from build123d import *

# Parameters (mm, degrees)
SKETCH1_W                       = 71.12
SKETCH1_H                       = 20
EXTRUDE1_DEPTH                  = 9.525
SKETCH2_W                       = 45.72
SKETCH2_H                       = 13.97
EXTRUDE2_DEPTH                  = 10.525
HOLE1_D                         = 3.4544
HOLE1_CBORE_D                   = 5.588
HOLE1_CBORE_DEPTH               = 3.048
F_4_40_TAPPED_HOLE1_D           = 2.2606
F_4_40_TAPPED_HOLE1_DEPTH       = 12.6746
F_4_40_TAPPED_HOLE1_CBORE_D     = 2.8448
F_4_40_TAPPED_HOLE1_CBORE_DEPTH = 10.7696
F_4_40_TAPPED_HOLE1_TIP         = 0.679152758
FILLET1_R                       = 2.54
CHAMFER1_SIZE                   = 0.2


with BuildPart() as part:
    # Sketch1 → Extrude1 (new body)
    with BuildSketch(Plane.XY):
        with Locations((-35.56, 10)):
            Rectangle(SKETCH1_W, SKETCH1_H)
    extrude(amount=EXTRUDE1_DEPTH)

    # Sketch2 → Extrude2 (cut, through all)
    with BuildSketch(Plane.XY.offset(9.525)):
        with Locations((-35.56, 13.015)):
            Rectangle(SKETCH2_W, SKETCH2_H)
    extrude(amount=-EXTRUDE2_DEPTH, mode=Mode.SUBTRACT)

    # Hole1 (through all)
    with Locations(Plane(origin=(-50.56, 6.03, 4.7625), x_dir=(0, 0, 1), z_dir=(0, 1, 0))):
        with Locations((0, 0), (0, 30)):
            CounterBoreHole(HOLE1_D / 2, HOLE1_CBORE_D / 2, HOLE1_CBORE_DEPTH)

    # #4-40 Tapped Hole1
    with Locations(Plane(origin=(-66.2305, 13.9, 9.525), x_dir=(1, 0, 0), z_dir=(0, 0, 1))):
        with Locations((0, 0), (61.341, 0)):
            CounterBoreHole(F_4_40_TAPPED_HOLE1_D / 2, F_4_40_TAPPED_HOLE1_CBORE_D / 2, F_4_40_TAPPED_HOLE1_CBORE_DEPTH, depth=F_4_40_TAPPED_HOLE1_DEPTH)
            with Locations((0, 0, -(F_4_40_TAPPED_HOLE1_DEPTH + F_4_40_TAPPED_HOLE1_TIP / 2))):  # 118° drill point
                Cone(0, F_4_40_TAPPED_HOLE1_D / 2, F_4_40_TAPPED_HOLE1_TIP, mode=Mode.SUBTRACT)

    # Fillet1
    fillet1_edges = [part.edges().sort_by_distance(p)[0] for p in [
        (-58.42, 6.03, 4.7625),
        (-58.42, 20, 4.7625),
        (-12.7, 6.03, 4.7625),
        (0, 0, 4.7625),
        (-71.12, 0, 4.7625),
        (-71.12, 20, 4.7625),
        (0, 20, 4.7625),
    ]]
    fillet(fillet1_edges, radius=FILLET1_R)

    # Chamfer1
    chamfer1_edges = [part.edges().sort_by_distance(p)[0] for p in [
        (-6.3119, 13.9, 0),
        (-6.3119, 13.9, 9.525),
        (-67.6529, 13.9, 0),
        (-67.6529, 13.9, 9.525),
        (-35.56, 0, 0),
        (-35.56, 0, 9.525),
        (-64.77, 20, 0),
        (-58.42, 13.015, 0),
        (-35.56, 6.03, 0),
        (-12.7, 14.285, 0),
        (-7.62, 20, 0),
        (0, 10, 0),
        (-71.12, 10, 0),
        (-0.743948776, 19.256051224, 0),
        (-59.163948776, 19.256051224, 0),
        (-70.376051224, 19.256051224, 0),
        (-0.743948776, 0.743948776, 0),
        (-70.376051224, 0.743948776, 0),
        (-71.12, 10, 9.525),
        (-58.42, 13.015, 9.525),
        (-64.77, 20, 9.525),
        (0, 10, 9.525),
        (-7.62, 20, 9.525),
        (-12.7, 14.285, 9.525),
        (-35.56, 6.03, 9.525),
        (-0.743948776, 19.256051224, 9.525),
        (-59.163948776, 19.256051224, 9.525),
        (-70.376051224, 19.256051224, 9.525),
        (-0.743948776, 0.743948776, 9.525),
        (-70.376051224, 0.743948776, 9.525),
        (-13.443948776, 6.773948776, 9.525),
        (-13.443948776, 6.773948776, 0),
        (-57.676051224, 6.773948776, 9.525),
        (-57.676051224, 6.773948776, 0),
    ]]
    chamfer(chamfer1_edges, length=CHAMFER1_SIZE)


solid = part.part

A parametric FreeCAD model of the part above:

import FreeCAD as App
import Part
import Sketcher
from FreeCAD import Vector
Q = App.Units.Quantity


def edges_at(feature, points):
    """Names of the edges that pass closest to the given points."""
    edges = feature.Shape.Edges
    near = lambda p: min(range(len(edges)), key=lambda i: edges[i].distToShape(Part.Vertex(*p))[0])
    return sorted({f"Edge{near(p) + 1}" for p in points})


def add_polygon(sketch, points):
    """Adds a closed chain of lines whose ends are joined by coincident constraints."""
    first, n = sketch.GeometryCount, len(points)
    for a, b in zip(points, points[1:] + points[:1]):
        sketch.addGeometry(Part.LineSegment(App.Vector(*a, 0), App.Vector(*b, 0)), False)
    for i in range(n):
        sketch.addConstraint(Sketcher.Constraint("Coincident", first + i, 2, first + (i + 1) % n, 1))

doc = App.newDocument("Part")
params = doc.addObject("Spreadsheet::Sheet", "Params")
for row, (alias, value) in enumerate([
    ("sketch1_width", "2.8 in"),
    ("pad1_length", "0.375 in"),
    ("sketch2_width", "1.8 in"),
    ("sketch2_height", "0.55 in"),
    ("sketch3_diameter", "0.136 in"),
    ("hole_diameter", "0.136 in"),
    ("hole_cbore_diameter", "0.22 in"),
    ("hole_cbore_depth", "0.12 in"),
    ("sketch4_diameter", "0.089 in"),
    ("hole2_diameter", "0.089 in"),
    ("hole2_depth", "0.499 in"),
    ("hole2_cbore_diameter", "0.112 in"),
    ("hole2_cbore_depth", "0.424 in"),
    ("fillet_radius", "0.1 in"),
    ("chamfer_size", "0.2 mm"),
], start=1):
    params.set(f"A{row}", alias)
    params.set(f"B{row}", "=" + value)
    params.setAlias(f"B{row}", alias)

body = doc.addObject("PartDesign::Body", "Body")

sketch1 = body.newObject("Sketcher::SketchObject", "Sketch")
sketch1.AttachmentSupport = (doc.getObject("XY_Plane"), [""])
sketch1.MapMode = "FlatFace"
add_polygon(sketch1, [(-71.12, 20), (-71.12, 0), (0, 0), (0, 20)])
sketch1.addConstraint([
    Sketcher.Constraint("Vertical", 0),
    Sketcher.Constraint("Horizontal", 1),
    Sketcher.Constraint("Vertical", 2),
    Sketcher.Constraint("Horizontal", 3),
    Sketcher.Constraint("Coincident", 1, 2, -1, 1),
    Sketcher.Constraint("DistanceX", 1, 1, 1, 2, Q("2.8 in")),
    Sketcher.Constraint("DistanceY", 0, 2, 0, 1, Q("20 mm")),
])
sketch1.setExpression("Constraints[9]", "Params.sketch1_width")
pad1 = body.newObject("PartDesign::Pad", "Pad")
pad1.Profile = sketch1
pad1.setExpression("Length", "Params.pad1_length")

sketch2 = body.newObject("Sketcher::SketchObject", "Sketch001")
sketch2.AttachmentSupport = (doc.getObject("XY_Plane"), [""])
sketch2.MapMode = "FlatFace"
sketch2.AttachmentOffset = App.Placement(Vector(0, 0, 0.375 * 25.4), App.Rotation())
add_polygon(sketch2, [(-58.42, 20), (-58.42, 6.03), (-12.7, 6.03), (-12.7, 20)])
sketch2.addConstraint([
    Sketcher.Constraint("Vertical", 0),
    Sketcher.Constraint("Horizontal", 1),
    Sketcher.Constraint("Vertical", 2),
    Sketcher.Constraint("Horizontal", 3),
    Sketcher.Constraint("DistanceX", 1, 1, 1, 2, Q("1.8 in")),
    Sketcher.Constraint("DistanceY", 0, 2, 0, 1, Q("0.55 in")),
    Sketcher.Constraint("DistanceX", 0, 2, -1, 1, Q("2.3 in")),
    Sketcher.Constraint("DistanceY", -1, 1, 0, 2, Q("6.03 mm")),
])
sketch2.setExpression("Constraints[8]", "Params.sketch2_width")
sketch2.setExpression("Constraints[9]", "Params.sketch2_height")
pocket1 = body.newObject("PartDesign::Pocket", "Pocket")
pocket1.Profile = sketch2
pocket1.Type = "ThroughAll"

sketch3 = body.newObject("Sketcher::SketchObject", "Sketch002")
sketch3.AttachmentSupport = (doc.getObject("XZ_Plane"), [""])
sketch3.MapMode = "FlatFace"
sketch3.AttachmentOffset = App.Placement(Vector(0, 0, -6.03), App.Rotation())
sketch3.addGeometry([
    Part.Circle(Vector(-50.56, 4.7625, 0), Vector(0, 0, 1), 1.7272),
    Part.Circle(Vector(-20.56, 4.7625, 0), Vector(0, 0, 1), 1.7272),
], False)
sketch3.addConstraint([
    Sketcher.Constraint("Equal", 0, 1),
    Sketcher.Constraint("Horizontal", 0, 3, 1, 3),
    Sketcher.Constraint("Diameter", 0, Q("0.136 in")),
    Sketcher.Constraint("DistanceY", -1, 1, 0, 3, Q("0.1875 in")),
    Sketcher.Constraint("DistanceX", 0, 3, -1, 1, Q("50.56 mm")),
    Sketcher.Constraint("DistanceX", 1, 3, -1, 1, Q("20.56 mm")),
])
sketch3.setExpression("Constraints[2]", "Params.sketch3_diameter")
doc.recompute()
hole = body.newObject("PartDesign::Hole", "Hole")
hole.Profile = sketch3
hole.ThreadType = "None"
hole.setExpression("Diameter", "Params.hole_diameter")
hole.DepthType = "ThroughAll"
hole.HoleCutType = "Counterbore"
hole.setExpression("HoleCutDiameter", "Params.hole_cbore_diameter")
hole.setExpression("HoleCutDepth", "Params.hole_cbore_depth")
hole.Reversed = True

sketch4 = body.newObject("Sketcher::SketchObject", "Sketch003")
sketch4.AttachmentSupport = (doc.getObject("XY_Plane"), [""])
sketch4.MapMode = "FlatFace"
sketch4.AttachmentOffset = App.Placement(Vector(0, 0, 0.375 * 25.4), App.Rotation())
sketch4.addGeometry([
    Part.Circle(Vector(-66.2305, 13.9, 0), Vector(0, 0, 1), 1.1303),
    Part.Circle(Vector(-4.8895, 13.9, 0), Vector(0, 0, 1), 1.1303),
], False)
sketch4.addConstraint([
    Sketcher.Constraint("Equal", 0, 1),
    Sketcher.Constraint("Horizontal", 0, 3, 1, 3),
    Sketcher.Constraint("Diameter", 0, Q("0.089 in")),
    Sketcher.Constraint("DistanceX", 0, 3, 1, 3, Q("2.415 in")),
    Sketcher.Constraint("DistanceX", 0, 3, -1, 1, Q("2.6075 in")),
    Sketcher.Constraint("DistanceY", -1, 1, 0, 3, Q("13.9 mm")),
])
sketch4.setExpression("Constraints[2]", "Params.sketch4_diameter")
doc.recompute()
hole2 = body.newObject("PartDesign::Hole", "Hole001")
hole2.Profile = sketch4
hole2.ThreadType = "None"
hole2.setExpression("Diameter", "Params.hole2_diameter")
hole2.DepthType = "Dimension"
hole2.setExpression("Depth", "Params.hole2_depth")
hole2.DrillPoint = "Angled"
hole2.DrillPointAngle = 118
hole2.HoleCutType = "Counterbore"
hole2.setExpression("HoleCutDiameter", "Params.hole2_cbore_diameter")
hole2.setExpression("HoleCutDepth", "Params.hole2_cbore_depth")
doc.recompute()

fillet = body.newObject("PartDesign::Fillet", "Fillet")
fillet.Base = (hole2, edges_at(hole2, [
    (-58.42, 6.03, 4.763),
    (-58.42, 20, 4.763),
    (-12.7, 6.03, 4.763),
    (0, 0, 4.763),
    (-71.12, 0, 4.763),
    (-71.12, 20, 4.763),
    (0, 20, 4.763),
]))
fillet.setExpression("Radius", "Params.fillet_radius")
doc.recompute()

chamfer = body.newObject("PartDesign::Chamfer", "Chamfer")
chamfer.Base = (fillet, edges_at(fillet, [
    (-6.312, 13.9, 0),
    (-6.312, 13.9, 9.525),
    (-67.653, 13.9, 0),
    (-67.653, 13.9, 9.525),
    (-35.56, 0, 0),
    (-35.56, 0, 9.525),
    (-64.77, 20, 0),
    (-58.42, 13.015, 0),
    (-35.56, 6.03, 0),
    (-12.7, 14.285, 0),
    (-7.62, 20, 0),
    (0, 10, 0),
    (-71.12, 10, 0),
    (-0.744, 19.256, 0),
    (-59.164, 19.256, 0),
    (-70.376, 19.256, 0),
    (-0.744, 0.744, 0),
    (-70.376, 0.744, 0),
    (-71.12, 10, 9.525),
    (-58.42, 13.015, 9.525),
    (-64.77, 20, 9.525),
    (0, 10, 9.525),
    (-7.62, 20, 9.525),
    (-12.7, 14.285, 9.525),
    (-35.56, 6.03, 9.525),
    (-0.744, 19.256, 9.525),
    (-59.164, 19.256, 9.525),
    (-70.376, 19.256, 9.525),
    (-0.744, 0.744, 9.525),
    (-70.376, 0.744, 9.525),
    (-13.444, 6.774, 9.525),
    (-13.444, 6.774, 0),
    (-57.676, 6.774, 9.525),
    (-57.676, 6.774, 0),
]))
chamfer.setExpression("Size", "Params.chamfer_size")

doc.recompute()
